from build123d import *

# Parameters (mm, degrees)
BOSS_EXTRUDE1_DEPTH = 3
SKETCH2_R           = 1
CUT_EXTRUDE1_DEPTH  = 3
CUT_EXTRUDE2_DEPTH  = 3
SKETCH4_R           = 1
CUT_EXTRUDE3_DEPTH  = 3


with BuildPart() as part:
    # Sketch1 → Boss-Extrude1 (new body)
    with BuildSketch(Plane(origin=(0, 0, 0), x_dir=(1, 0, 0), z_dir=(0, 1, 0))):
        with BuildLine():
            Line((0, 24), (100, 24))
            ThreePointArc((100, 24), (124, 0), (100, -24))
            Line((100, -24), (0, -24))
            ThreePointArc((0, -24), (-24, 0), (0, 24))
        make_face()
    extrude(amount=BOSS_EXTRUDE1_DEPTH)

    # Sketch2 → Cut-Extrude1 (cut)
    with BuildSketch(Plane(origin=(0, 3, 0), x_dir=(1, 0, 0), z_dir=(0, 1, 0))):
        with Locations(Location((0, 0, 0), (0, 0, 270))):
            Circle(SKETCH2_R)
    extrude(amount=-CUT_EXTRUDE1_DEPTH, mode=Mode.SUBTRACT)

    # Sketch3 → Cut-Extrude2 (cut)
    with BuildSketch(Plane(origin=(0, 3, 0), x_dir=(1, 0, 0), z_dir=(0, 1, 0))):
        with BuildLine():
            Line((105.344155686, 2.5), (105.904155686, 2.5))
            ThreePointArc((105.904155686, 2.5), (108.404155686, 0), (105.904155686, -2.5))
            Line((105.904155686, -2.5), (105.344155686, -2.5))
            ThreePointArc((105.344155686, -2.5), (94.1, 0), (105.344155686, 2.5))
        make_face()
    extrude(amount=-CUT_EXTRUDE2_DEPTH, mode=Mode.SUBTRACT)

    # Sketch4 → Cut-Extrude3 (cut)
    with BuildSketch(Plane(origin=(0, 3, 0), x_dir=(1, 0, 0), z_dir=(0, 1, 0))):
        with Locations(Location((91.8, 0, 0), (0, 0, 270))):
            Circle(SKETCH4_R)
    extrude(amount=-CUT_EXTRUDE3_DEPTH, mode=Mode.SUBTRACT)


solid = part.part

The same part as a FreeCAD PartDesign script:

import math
import FreeCAD as App
import Part
import Sketcher
from FreeCAD import Vector
Q = App.Units.Quantity

doc = App.newDocument("Part")
body = doc.addObject("PartDesign::Body", "Body")

sketch1 = body.newObject("Sketcher::SketchObject", "Sketch")
sketch1.AttachmentSupport = (doc.getObject("XZ_Plane"), [""])
sketch1.MapMode = "FlatFace"
sketch1.addGeometry([
    Part.LineSegment(Vector(100, -24, 0), Vector(0, -24, 0)),
    Part.ArcOfCircle(Part.Circle(Vector(0, 0, 0), Vector(0, 0, 1), 24), math.radians(90), math.radians(270)),
    Part.LineSegment(Vector(0, 24, 0), Vector(100, 24, 0)),
    Part.ArcOfCircle(Part.Circle(Vector(100, 0, 0), Vector(0, 0, 1), 24), math.radians(-90), math.radians(90)),
], False)
sketch1.addConstraint([
    Sketcher.Constraint("Tangent", 0, 2, 1, 2),
    Sketcher.Constraint("Tangent", 1, 1, 2, 1),
    Sketcher.Constraint("Tangent", 2, 2, 3, 2),
    Sketcher.Constraint("Tangent", 3, 1, 0, 1),
    Sketcher.Constraint("Horizontal", 0),
    Sketcher.Constraint("Horizontal", 2),
    Sketcher.Constraint("Coincident", 1, 3, -1, 1),
    Sketcher.Constraint("Radius", 1, Q("24 mm")),
    Sketcher.Constraint("DistanceX", 0, 2, 0, 1, Q("100 mm")),
])
pad1 = body.newObject("PartDesign::Pad", "Pad")
pad1.Profile = sketch1
pad1.Length = 3
pad1.Reversed = True

sketch2 = body.newObject("Sketcher::SketchObject", "Sketch001")
sketch2.AttachmentSupport = (doc.getObject("XZ_Plane"), [""])
sketch2.MapMode = "FlatFace"
sketch2.AttachmentOffset = App.Placement(Vector(0, 0, -3), App.Rotation())
sketch2.addGeometry(Part.Circle(Vector(0, 0, 0), Vector(0, 0, 1), 1), False)
sketch2.addConstraint([
    Sketcher.Constraint("Coincident", 0, 3, -1, 1),
    Sketcher.Constraint("Diameter", 0, Q("2 mm")),
])
pocket1 = body.newObject("PartDesign::Pocket", "Pocket")
pocket1.Profile = sketch2
pocket1.Length = 3
pocket1.Reversed = True

sketch3 = body.newObject("Sketcher::SketchObject", "Sketch002")
sketch3.AttachmentSupport = (doc.getObject("XZ_Plane"), [""])
sketch3.MapMode = "FlatFace"
sketch3.AttachmentOffset = App.Placement(Vector(0, 0, -3), App.Rotation())
sketch3.addGeometry([
    Part.LineSegment(Vector(105.9, -2.5, 0), Vector(105.3, -2.5, 0)),
    Part.ArcOfCircle(Part.Circle(Vector(100, 0, 0), Vector(0, 0, 1), 5.9), math.radians(25), math.radians(335)),
    Part.LineSegment(Vector(105.3, 2.5, 0), Vector(105.9, 2.5, 0)),
    Part.ArcOfCircle(Part.Circle(Vector(105.9, 0, 0), Vector(0, 0, 1), 2.5), math.radians(-90), math.radians(90)),
], False)
sketch3.addConstraint([
    Sketcher.Constraint("Coincident", 0, 2, 1, 2),
    Sketcher.Constraint("Coincident", 1, 1, 2, 1),
    Sketcher.Constraint("Tangent", 2, 2, 3, 2),
    Sketcher.Constraint("Tangent", 3, 1, 0, 1),
    Sketcher.Constraint("Horizontal", 0),
    Sketcher.Constraint("Horizontal", 2),
    Sketcher.Constraint("Symmetric", 0, 2, 1, 1, -1),
    Sketcher.Constraint("Radius", 1, Q("5.9 mm")),
    Sketcher.Constraint("Radius", 3, Q("2.5 mm")),
    Sketcher.Constraint("DistanceX", -1, 1, 1, 3, Q("100 mm")),
    Sketcher.Constraint("DistanceX", 0, 2, 0, 1, Q("0.56 mm")),
])
pocket2 = body.newObject("PartDesign::Pocket", "Pocket001")
pocket2.Profile = sketch3
pocket2.Length = 3
pocket2.Reversed = True

sketch4 = body.newObject("Sketcher::SketchObject", "Sketch003")
sketch4.AttachmentSupport = (doc.getObject("XZ_Plane"), [""])
sketch4.MapMode = "FlatFace"
sketch4.AttachmentOffset = App.Placement(Vector(0, 0, -3), App.Rotation())
sketch4.addGeometry(Part.Circle(Vector(91.8, 0, 0), Vector(0, 0, 1), 1), False)
sketch4.addConstraint([
    Sketcher.Constraint("PointOnObject", 0, 3, -1),
    Sketcher.Constraint("Diameter", 0, Q("2 mm")),
    Sketcher.Constraint("DistanceX", -1, 1, 0, 3, Q("91.8 mm")),
])
pocket3 = body.newObject("PartDesign::Pocket", "Pocket002")
pocket3.Profile = sketch4
pocket3.Length = 3
pocket3.Reversed = True

doc.recompute()
